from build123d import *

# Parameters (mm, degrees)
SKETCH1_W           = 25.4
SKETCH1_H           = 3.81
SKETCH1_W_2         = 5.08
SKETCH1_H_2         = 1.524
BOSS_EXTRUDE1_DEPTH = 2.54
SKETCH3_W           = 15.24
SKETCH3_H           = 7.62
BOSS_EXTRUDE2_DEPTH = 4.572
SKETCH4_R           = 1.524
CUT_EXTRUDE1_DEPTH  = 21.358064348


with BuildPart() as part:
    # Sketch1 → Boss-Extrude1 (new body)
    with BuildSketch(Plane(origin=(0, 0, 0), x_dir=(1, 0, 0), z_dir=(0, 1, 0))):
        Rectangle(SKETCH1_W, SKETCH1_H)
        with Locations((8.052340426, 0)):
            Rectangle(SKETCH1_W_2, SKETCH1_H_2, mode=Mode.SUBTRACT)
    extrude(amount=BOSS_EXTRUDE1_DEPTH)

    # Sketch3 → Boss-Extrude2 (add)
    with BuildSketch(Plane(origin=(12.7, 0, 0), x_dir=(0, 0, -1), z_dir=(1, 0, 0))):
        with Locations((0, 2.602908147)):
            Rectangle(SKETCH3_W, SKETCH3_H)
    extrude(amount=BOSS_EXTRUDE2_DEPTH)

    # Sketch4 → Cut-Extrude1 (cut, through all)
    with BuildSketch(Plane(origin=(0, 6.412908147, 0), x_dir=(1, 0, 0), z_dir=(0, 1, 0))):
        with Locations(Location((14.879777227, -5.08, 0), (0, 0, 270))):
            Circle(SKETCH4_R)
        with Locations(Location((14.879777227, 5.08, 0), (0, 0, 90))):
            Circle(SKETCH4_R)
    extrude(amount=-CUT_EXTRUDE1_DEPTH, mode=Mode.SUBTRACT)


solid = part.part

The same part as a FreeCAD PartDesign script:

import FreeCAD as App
import Part
import Sketcher

V = App.Vector
Q = App.Units.Quantity

doc = App.newDocument("Part")
params = doc.addObject("Spreadsheet::Sheet", "Params")
for row, (alias, value) in enumerate([
    ("sketch1_width", "1 in"),
    ("sketch1_width2", "0.2 in"),
    ("sketch1_height", "0.15 in"),
    ("sketch1_height2", "0.06 in"),
    ("pad1_length", "0.1 in"),
    ("sketch2_width", "0.3 in"),
    ("sketch2_height", "0.6 in"),
    ("pad2_length", "0.18 in"),
    ("sketch3_diameter", "0.12 in"),
], start=1):
    params.set(f"A{row}", alias)
    params.set(f"B{row}", "=" + value)
    params.setAlias(f"B{row}", alias)

body = doc.addObject("PartDesign::Body", "Body")

# Sketch on XZ plane
sketch1 = doc.addObject("Sketcher::SketchObject", "Sketch")
body.addObject(sketch1)
sketch1.AttachmentSupport = (doc.XZ_Plane, [""])
sketch1.MapMode = "FlatFace"
sketch1.addGeometry([
    Part.LineSegment(V(-12.7, -1.9, 0), V(-12.7, 1.9, 0)),  # 0
    Part.LineSegment(V(-12.7, 1.9, 0), V(12.7, 1.9, 0)),  # 1
    Part.LineSegment(V(12.7, 1.9, 0), V(12.7, -1.9, 0)),  # 2
    Part.LineSegment(V(12.7, -1.9, 0), V(-12.7, -1.9, 0)),  # 3
    Part.LineSegment(V(10.6, 0.8, 0), V(5.5, 0.8, 0)),  # 4
    Part.LineSegment(V(5.5, 0.8, 0), V(5.5, -0.8, 0)),  # 5
    Part.LineSegment(V(5.5, -0.8, 0), V(10.6, -0.8, 0)),  # 6
    Part.LineSegment(V(10.6, -0.8, 0), V(10.6, 0.8, 0)),  # 7
], False)
sketch1.addConstraint([
    Sketcher.Constraint("Coincident", 0, 2, 1, 1),
    Sketcher.Constraint("Coincident", 1, 2, 2, 1),
    Sketcher.Constraint("Coincident", 2, 2, 3, 1),
    Sketcher.Constraint("Coincident", 3, 2, 0, 1),
    Sketcher.Constraint("Coincident", 4, 2, 5, 1),
    Sketcher.Constraint("Coincident", 5, 2, 6, 1),
    Sketcher.Constraint("Coincident", 6, 2, 7, 1),
    Sketcher.Constraint("Coincident", 7, 2, 4, 1),
    Sketcher.Constraint("Vertical", 0),
    Sketcher.Constraint("Horizontal", 1),
    Sketcher.Constraint("Vertical", 2),
    Sketcher.Constraint("Horizontal", 3),
    Sketcher.Constraint("Horizontal", 4),
    Sketcher.Constraint("Vertical", 5),
    Sketcher.Constraint("Horizontal", 6),
    Sketcher.Constraint("Vertical", 7),
    Sketcher.Constraint("Symmetric", 0, 2, 2, 2, -1, 1),
    Sketcher.Constraint("DistanceX", 1, 1, 1, 2, Q("1 in")),
    Sketcher.Constraint("DistanceX", 4, 2, 4, 1, Q("0.2 in")),
    Sketcher.Constraint("DistanceY", 0, 1, 0, 2, Q("0.15 in")),
    Sketcher.Constraint("DistanceY", 5, 2, 5, 1, Q("0.06 in")),
    Sketcher.Constraint("DistanceY", -1, 1, 4, 2, Q("0.03 in")),
    Sketcher.Constraint("DistanceX", -1, 1, 4, 2, Q("5.51234 mm")),
])
sketch1.setExpression("Constraints[17]", "Params.sketch1_width")
sketch1.setExpression("Constraints[18]", "Params.sketch1_width2")
sketch1.setExpression("Constraints[19]", "Params.sketch1_height")
sketch1.setExpression("Constraints[20]", "Params.sketch1_height2")
pad1 = doc.addObject("PartDesign::Pad", "Pad")
body.addObject(pad1)
pad1.Profile = sketch1
pad1.setExpression("Length", "Params.pad1_length")
pad1.Reversed = True

# Sketch on YZ plane
sketch2 = doc.addObject("Sketcher::SketchObject", "Sketch001")
body.addObject(sketch2)
sketch2.AttachmentSupport = (doc.YZ_Plane, [""])
sketch2.MapMode = "FlatFace"
sketch2.AttachmentOffset = App.Placement(V(0, 0, 0.5 * 25.4), App.Rotation())
sketch2.addGeometry([
    Part.LineSegment(V(6, 8, 0), V(-1, 8, 0)),
    Part.LineSegment(V(-1, 8, 0), V(-1, -8, 0)),
    Part.LineSegment(V(-1, -8, 0), V(6, -8, 0)),
    Part.LineSegment(V(6, -8, 0), V(6, 8, 0)),
], False)
sketch2.addConstraint([
    Sketcher.Constraint("Coincident", 0, 2, 1, 1),
    Sketcher.Constraint("Coincident", 1, 2, 2, 1),
    Sketcher.Constraint("Coincident", 2, 2, 3, 1),
    Sketcher.Constraint("Coincident", 3, 2, 0, 1),
    Sketcher.Constraint("Horizontal", 0),
    Sketcher.Constraint("Vertical", 1),
    Sketcher.Constraint("Horizontal", 2),
    Sketcher.Constraint("Vertical", 3),
    Sketcher.Constraint("DistanceX", 0, 2, 0, 1, Q("0.3 in")),
    Sketcher.Constraint("DistanceY", 1, 2, 1, 1, Q("0.6 in")),
    Sketcher.Constraint("DistanceY", -1, 1, 0, 2, Q("0.3 in")),
    Sketcher.Constraint("DistanceX", 0, 2, -1, 1, Q("1.207092 mm")),
])
sketch2.setExpression("Constraints[8]", "Params.sketch2_width")
sketch2.setExpression("Constraints[9]", "Params.sketch2_height")
pad2 = doc.addObject("PartDesign::Pad", "Pad001")
body.addObject(pad2)
pad2.Profile = sketch2
pad2.setExpression("Length", "Params.pad2_length")

# Sketch on XZ plane
sketch3 = doc.addObject("Sketcher::SketchObject", "Sketch002")
body.addObject(sketch3)
sketch3.AttachmentSupport = (doc.XZ_Plane, [""])
sketch3.MapMode = "FlatFace"
sketch3.AttachmentOffset = App.Placement(V(0, 0, -6.412908), App.Rotation())
sketch3.addGeometry([
    Part.Circle(V(14.9, 5.1, 0), V(0, 0, 1), 1.5),
    Part.Circle(V(14.9, -5.1, 0), V(0, 0, 1), 1.5),
], False)
sketch3.addConstraint([
    Sketcher.Constraint("Equal", 0, 1),
    Sketcher.Constraint("Symmetric", 0, 3, 1, 3, -1),
    Sketcher.Constraint("Diameter", 0, Q("0.12 in")),
    Sketcher.Constraint("DistanceY", -1, 1, 0, 3, Q("0.2 in")),
    Sketcher.Constraint("DistanceX", -1, 1, 0, 3, Q("14.879777 mm")),
])
sketch3.setExpression("Constraints[2]", "Params.sketch3_diameter")
pocket1 = doc.addObject("PartDesign::Pocket", "Pocket")
body.addObject(pocket1)
pocket1.Profile = sketch3
pocket1.Type = "ThroughAll"
pocket1.Reversed = True

doc.recompute()
